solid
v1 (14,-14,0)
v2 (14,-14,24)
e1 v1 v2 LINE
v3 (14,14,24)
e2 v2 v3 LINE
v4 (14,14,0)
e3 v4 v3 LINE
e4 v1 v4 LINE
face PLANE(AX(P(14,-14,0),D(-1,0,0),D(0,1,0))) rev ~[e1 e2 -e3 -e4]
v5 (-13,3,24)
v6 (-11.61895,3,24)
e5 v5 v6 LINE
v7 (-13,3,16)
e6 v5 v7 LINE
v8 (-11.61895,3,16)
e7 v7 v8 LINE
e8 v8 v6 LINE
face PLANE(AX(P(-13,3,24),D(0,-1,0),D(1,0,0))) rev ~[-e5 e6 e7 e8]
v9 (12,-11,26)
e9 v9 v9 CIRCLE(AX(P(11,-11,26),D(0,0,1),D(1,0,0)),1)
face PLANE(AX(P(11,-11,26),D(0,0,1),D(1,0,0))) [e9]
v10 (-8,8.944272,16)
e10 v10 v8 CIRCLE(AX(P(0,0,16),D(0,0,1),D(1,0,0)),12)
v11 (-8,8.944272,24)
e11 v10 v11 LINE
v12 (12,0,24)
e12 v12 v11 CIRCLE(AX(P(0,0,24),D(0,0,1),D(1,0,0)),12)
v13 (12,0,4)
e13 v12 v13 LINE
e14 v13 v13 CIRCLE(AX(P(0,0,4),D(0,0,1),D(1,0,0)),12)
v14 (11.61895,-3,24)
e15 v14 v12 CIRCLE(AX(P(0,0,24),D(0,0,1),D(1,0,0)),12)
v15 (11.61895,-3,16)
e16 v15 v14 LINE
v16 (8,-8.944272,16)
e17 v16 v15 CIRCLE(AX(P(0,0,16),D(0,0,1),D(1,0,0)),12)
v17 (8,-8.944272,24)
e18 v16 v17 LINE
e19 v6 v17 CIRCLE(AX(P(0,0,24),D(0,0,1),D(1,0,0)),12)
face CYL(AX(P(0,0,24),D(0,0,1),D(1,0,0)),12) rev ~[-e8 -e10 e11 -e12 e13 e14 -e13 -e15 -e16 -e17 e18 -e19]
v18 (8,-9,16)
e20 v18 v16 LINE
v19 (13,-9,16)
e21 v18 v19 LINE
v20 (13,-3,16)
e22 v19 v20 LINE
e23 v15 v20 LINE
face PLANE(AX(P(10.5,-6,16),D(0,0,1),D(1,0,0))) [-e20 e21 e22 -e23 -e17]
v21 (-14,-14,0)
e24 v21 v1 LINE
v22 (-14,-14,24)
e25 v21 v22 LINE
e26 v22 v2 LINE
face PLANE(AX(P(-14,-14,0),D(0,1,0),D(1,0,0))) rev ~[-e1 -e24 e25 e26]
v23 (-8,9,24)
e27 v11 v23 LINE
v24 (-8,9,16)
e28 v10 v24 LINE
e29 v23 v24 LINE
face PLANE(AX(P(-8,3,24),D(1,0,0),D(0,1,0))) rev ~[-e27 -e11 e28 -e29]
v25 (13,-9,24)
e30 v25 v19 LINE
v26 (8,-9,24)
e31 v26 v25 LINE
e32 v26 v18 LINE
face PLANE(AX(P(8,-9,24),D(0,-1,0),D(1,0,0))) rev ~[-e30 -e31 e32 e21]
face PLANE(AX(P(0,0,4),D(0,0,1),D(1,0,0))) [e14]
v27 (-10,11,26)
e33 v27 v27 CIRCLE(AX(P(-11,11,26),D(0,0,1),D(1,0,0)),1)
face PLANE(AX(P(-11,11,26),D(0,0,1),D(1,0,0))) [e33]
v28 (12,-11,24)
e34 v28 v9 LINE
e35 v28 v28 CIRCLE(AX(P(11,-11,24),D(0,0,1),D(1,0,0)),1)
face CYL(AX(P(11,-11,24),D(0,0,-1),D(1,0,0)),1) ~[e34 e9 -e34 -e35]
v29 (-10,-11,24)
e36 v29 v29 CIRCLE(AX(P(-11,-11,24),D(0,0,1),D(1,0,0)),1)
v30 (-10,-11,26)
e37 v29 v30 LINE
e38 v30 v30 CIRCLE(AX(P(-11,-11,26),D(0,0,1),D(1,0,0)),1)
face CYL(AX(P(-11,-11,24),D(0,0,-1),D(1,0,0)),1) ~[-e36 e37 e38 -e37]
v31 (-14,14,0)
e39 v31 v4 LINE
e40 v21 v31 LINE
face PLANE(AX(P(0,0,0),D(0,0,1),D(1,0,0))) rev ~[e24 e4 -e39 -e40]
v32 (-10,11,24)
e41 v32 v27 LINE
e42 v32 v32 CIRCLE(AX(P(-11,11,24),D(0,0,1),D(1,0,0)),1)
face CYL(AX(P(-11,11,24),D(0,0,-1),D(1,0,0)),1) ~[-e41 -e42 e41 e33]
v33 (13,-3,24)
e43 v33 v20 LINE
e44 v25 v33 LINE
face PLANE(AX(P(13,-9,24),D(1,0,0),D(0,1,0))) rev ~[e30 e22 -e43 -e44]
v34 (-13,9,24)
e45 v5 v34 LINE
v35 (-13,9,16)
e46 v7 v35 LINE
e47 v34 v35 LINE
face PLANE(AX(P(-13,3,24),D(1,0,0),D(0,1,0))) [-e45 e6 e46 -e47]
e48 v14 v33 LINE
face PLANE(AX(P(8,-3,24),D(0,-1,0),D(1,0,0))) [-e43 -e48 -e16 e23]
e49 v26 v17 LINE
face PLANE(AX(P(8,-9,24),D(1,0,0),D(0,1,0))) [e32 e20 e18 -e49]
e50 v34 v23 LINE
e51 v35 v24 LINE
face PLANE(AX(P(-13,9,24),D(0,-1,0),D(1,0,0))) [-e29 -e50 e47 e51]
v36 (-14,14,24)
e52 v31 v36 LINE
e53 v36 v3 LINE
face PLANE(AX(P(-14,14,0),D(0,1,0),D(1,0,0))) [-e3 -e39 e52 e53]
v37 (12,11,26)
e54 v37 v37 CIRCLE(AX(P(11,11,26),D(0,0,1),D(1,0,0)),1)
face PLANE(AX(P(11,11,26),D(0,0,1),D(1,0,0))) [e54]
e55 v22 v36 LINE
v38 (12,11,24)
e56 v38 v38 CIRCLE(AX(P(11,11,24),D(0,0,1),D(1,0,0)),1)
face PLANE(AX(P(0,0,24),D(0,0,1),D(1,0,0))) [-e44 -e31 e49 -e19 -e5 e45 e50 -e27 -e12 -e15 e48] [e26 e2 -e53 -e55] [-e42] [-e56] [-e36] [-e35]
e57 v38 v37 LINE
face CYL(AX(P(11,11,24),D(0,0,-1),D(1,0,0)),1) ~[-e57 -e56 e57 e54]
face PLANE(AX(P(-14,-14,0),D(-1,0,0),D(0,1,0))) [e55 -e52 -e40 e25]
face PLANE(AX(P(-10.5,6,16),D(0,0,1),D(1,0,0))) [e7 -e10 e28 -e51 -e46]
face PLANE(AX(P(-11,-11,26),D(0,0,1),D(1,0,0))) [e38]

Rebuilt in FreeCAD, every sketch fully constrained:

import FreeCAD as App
import Part
import Sketcher

V = App.Vector
Q = App.Units.Quantity

doc = App.newDocument("Part")
body = doc.addObject("PartDesign::Body", "Body")

# Sketch on XY plane
sketch1 = body.newObject("Sketcher::SketchObject", "Sketch")
sketch1.AttachmentSupport = (doc.getObject("XY_Plane"), [""])
sketch1.MapMode = "FlatFace"
sketch1.addGeometry([
    Part.LineSegment(V(-14, 14, 0), V(-14, -14, 0)),
    Part.LineSegment(V(-14, -14, 0), V(14, -14, 0)),
    Part.LineSegment(V(14, -14, 0), V(14, 14, 0)),
    Part.LineSegment(V(14, 14, 0), V(-14, 14, 0)),
], False)
sketch1.addConstraint([
    Sketcher.Constraint("Coincident", 0, 2, 1, 1),
    Sketcher.Constraint("Coincident", 1, 2, 2, 1),
    Sketcher.Constraint("Coincident", 2, 2, 3, 1),
    Sketcher.Constraint("Coincident", 3, 2, 0, 1),
    Sketcher.Constraint("Vertical", 0),
    Sketcher.Constraint("Horizontal", 1),
    Sketcher.Constraint("Vertical", 2),
    Sketcher.Constraint("Horizontal", 3),
    Sketcher.Constraint("Symmetric", 0, 2, 2, 2, -1, 1),
    Sketcher.Constraint("Equal", 3, 0),
    Sketcher.Constraint("DistanceX", 1, 1, 1, 2, Q("28 mm")),
])
pad1 = body.newObject("PartDesign::Pad", "Pad")
pad1.Profile = sketch1
pad1.Length = 24

# Sketch on XY plane
sketch2 = body.newObject("Sketcher::SketchObject", "Sketch001")
sketch2.AttachmentSupport = (doc.getObject("XY_Plane"), [""])
sketch2.MapMode = "FlatFace"
sketch2.AttachmentOffset = App.Placement(V(0, 0, 24), App.Rotation())
sketch2.addGeometry(Part.Circle(V(0, 0, 0), V(0, 0, 1), 12), False)
sketch2.addConstraint([
    Sketcher.Constraint("Coincident", 0, 3, -1, 1),
    Sketcher.Constraint("Diameter", 0, Q("24 mm")),
])
pocket1 = body.newObject("PartDesign::Pocket", "Pocket")
pocket1.Profile = sketch2
pocket1.Length = 20

# Sketch on XY plane
sketch3 = body.newObject("Sketcher::SketchObject", "Sketch002")
sketch3.AttachmentSupport = (doc.getObject("XY_Plane"), [""])
sketch3.MapMode = "FlatFace"
sketch3.AttachmentOffset = App.Placement(V(0, 0, 24), App.Rotation())
sketch3.addGeometry([
    Part.Circle(V(-11, 11, 0), V(0, 0, 1), 1),
    Part.Circle(V(11, 11, 0), V(0, 0, 1), 1),
    Part.Circle(V(11, -11, 0), V(0, 0, 1), 1),
    Part.Circle(V(-11, -11, 0), V(0, 0, 1), 1),
], False)
sketch3.addConstraint([
    Sketcher.Constraint("Equal", 0, 1),
    Sketcher.Constraint("Equal", 1, 2),
    Sketcher.Constraint("Equal", 2, 3),
    Sketcher.Constraint("Symmetric", 0, 3, 2, 3, -1, 1),
    Sketcher.Constraint("Symmetric", 1, 3, 3, 3, -1, 1),
    Sketcher.Constraint("Symmetric", 0, 3, 1, 3, -2),
    Sketcher.Constraint("Diameter", 0, Q("2 mm")),
    Sketcher.Constraint("DistanceX", 0, 3, -1, 1, Q("11 mm")),
    Sketcher.Constraint("DistanceY", -1, 1, 0, 3, Q("11 mm")),
])
pad2 = body.newObject("PartDesign::Pad", "Pad001")
pad2.Profile = sketch3
pad2.Length = 2

# Sketch on XY plane
sketch4 = body.newObject("Sketcher::SketchObject", "Sketch003")
sketch4.AttachmentSupport = (doc.getObject("XY_Plane"), [""])
sketch4.MapMode = "FlatFace"
sketch4.AttachmentOffset = App.Placement(V(0, 0, 24), App.Rotation())
sketch4.addGeometry([
    Part.LineSegment(V(-13, 9, 0), V(-13, 3, 0)),  # 0
    Part.LineSegment(V(-13, 3, 0), V(-8, 3, 0)),  # 1
    Part.LineSegment(V(-8, 3, 0), V(-8, 9, 0)),  # 2
    Part.LineSegment(V(-8, 9, 0), V(-13, 9, 0)),  # 3
    Part.LineSegment(V(8, -3, 0), V(8, -9, 0)),  # 4
    Part.LineSegment(V(8, -9, 0), V(13, -9, 0)),  # 5
    Part.LineSegment(V(13, -9, 0), V(13, -3, 0)),  # 6
    Part.LineSegment(V(13, -3, 0), V(8, -3, 0)),  # 7
], False)
sketch4.addConstraint([
    Sketcher.Constraint("Coincident", 0, 2, 1, 1),
    Sketcher.Constraint("Coincident", 1, 2, 2, 1),
    Sketcher.Constraint("Coincident", 2, 2, 3, 1),
    Sketcher.Constraint("Coincident", 3, 2, 0, 1),
    Sketcher.Constraint("Coincident", 4, 2, 5, 1),
    Sketcher.Constraint("Coincident", 5, 2, 6, 1),
    Sketcher.Constraint("Coincident", 6, 2, 7, 1),
    Sketcher.Constraint("Coincident", 7, 2, 4, 1),
    Sketcher.Constraint("Vertical", 0),
    Sketcher.Constraint("Horizontal", 1),
    Sketcher.Constraint("Vertical", 2),
    Sketcher.Constraint("Horizontal", 3),
    Sketcher.Constraint("Vertical", 4),
    Sketcher.Constraint("Horizontal", 5),
    Sketcher.Constraint("Vertical", 6),
    Sketcher.Constraint("Horizontal", 7),
    Sketcher.Constraint("Symmetric", 2, 2, 4, 2, -1, 1),
    Sketcher.Constraint("Symmetric", 0, 2, 6, 2, -1, 1),
    Sketcher.Constraint("DistanceX", 1, 1, 1, 2, Q("5 mm")),
    Sketcher.Constraint("DistanceY", 0, 2, 0, 1, Q("6 mm")),
    Sketcher.Constraint("DistanceX", 0, 2, -1, 1, Q("13 mm")),
    Sketcher.Constraint("DistanceY", -1, 1, 0, 2, Q("3 mm")),
])
pocket2 = body.newObject("PartDesign::Pocket", "Pocket001")
pocket2.Profile = sketch4
pocket2.Length = 8

doc.recompute()
